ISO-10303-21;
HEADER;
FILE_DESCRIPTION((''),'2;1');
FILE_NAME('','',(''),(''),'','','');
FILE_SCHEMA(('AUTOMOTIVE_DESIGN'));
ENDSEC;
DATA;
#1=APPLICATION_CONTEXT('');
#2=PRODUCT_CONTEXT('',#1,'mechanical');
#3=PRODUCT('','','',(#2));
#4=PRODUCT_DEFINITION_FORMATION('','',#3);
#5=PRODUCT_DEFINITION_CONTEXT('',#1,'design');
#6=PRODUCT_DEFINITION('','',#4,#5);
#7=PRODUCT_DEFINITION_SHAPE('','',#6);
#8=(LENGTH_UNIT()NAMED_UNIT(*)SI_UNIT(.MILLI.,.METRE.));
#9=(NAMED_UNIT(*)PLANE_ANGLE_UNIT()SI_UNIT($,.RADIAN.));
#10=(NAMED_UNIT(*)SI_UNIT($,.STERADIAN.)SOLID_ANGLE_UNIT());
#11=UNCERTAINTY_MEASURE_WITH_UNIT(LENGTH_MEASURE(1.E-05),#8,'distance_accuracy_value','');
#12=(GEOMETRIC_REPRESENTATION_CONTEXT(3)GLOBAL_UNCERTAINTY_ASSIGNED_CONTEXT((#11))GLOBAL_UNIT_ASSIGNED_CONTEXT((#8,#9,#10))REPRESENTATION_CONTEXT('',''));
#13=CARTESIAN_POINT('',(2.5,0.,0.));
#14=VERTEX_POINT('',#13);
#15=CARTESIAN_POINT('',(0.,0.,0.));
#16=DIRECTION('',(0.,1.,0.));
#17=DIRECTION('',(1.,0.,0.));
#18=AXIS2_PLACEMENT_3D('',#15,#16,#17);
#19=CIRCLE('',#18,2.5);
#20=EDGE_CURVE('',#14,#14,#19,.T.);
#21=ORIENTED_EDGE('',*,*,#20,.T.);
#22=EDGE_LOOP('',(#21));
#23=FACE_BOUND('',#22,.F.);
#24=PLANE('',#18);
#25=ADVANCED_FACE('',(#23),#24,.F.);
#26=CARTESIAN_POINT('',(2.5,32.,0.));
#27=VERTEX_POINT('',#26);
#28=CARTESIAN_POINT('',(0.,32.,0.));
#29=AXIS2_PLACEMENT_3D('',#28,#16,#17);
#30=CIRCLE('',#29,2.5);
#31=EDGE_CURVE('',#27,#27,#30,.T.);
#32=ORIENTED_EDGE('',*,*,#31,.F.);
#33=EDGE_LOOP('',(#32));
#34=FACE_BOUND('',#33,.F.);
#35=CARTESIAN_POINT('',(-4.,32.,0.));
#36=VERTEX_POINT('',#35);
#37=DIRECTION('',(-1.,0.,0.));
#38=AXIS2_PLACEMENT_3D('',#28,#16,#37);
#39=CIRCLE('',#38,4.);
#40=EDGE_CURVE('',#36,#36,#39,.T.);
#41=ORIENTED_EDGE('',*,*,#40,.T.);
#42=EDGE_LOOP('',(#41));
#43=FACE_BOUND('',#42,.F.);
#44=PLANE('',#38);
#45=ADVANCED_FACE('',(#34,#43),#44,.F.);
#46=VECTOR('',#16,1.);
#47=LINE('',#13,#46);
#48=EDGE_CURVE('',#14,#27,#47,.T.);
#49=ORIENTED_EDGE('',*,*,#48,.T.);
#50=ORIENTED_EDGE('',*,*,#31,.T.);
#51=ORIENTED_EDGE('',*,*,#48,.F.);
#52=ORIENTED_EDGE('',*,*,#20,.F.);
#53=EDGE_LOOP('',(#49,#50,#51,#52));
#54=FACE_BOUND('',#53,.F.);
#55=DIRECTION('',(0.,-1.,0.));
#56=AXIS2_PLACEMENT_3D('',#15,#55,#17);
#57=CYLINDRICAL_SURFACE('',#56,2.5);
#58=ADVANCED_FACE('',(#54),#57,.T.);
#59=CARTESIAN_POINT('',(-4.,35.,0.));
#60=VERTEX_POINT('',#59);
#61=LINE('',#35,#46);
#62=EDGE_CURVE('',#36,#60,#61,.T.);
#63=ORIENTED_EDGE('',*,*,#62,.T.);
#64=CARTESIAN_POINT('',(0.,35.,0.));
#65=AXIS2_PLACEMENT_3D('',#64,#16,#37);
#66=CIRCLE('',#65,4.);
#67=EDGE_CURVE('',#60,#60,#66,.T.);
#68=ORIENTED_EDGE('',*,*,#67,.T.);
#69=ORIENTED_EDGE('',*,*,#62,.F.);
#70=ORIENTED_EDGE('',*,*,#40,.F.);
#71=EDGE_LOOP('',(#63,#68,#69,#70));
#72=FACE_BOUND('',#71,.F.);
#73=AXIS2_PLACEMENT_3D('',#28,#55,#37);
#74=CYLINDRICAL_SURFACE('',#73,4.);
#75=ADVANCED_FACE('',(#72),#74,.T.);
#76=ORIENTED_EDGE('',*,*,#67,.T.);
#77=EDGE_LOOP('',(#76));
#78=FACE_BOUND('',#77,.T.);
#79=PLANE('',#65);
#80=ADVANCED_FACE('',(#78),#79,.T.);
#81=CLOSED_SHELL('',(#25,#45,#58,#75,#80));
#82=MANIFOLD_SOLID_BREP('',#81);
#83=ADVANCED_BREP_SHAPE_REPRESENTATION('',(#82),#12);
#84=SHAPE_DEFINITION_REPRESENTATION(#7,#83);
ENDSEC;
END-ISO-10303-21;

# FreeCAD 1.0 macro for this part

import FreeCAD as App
import Part
import Sketcher
from FreeCAD import Vector
Q = App.Units.Quantity

doc = App.newDocument("Part")
body = doc.addObject("PartDesign::Body", "Body")

sketch1 = body.newObject("Sketcher::SketchObject", "Sketch")
sketch1.AttachmentSupport = (doc.getObject("XZ_Plane"), [""])
sketch1.MapMode = "FlatFace"
sketch1.addGeometry(Part.Circle(Vector(0, 0, 0), Vector(0, 0, 1), 2.5), False)
sketch1.addConstraint([
    Sketcher.Constraint("Coincident", 0, 3, -1, 1),
    Sketcher.Constraint("Diameter", 0, Q("5 mm")),
])
pad1 = body.newObject("PartDesign::Pad", "Pad")
pad1.Profile = sketch1
pad1.Length = 32
pad1.Reversed = True

sketch2 = body.newObject("Sketcher::SketchObject", "Sketch001")
sketch2.AttachmentSupport = (doc.getObject("XZ_Plane"), [""])
sketch2.MapMode = "FlatFace"
sketch2.AttachmentOffset = App.Placement(Vector(0, 0, -32), App.Rotation())
sketch2.addGeometry(Part.Circle(Vector(0, 0, 0), Vector(0, 0, 1), 4), False)
sketch2.addConstraint([
    Sketcher.Constraint("Coincident", 0, 3, -1, 1),
    Sketcher.Constraint("Diameter", 0, Q("8 mm")),
])
pad2 = body.newObject("PartDesign::Pad", "Pad001")
pad2.Profile = sketch2
pad2.Length = 3
pad2.Reversed = True

doc.recompute()
